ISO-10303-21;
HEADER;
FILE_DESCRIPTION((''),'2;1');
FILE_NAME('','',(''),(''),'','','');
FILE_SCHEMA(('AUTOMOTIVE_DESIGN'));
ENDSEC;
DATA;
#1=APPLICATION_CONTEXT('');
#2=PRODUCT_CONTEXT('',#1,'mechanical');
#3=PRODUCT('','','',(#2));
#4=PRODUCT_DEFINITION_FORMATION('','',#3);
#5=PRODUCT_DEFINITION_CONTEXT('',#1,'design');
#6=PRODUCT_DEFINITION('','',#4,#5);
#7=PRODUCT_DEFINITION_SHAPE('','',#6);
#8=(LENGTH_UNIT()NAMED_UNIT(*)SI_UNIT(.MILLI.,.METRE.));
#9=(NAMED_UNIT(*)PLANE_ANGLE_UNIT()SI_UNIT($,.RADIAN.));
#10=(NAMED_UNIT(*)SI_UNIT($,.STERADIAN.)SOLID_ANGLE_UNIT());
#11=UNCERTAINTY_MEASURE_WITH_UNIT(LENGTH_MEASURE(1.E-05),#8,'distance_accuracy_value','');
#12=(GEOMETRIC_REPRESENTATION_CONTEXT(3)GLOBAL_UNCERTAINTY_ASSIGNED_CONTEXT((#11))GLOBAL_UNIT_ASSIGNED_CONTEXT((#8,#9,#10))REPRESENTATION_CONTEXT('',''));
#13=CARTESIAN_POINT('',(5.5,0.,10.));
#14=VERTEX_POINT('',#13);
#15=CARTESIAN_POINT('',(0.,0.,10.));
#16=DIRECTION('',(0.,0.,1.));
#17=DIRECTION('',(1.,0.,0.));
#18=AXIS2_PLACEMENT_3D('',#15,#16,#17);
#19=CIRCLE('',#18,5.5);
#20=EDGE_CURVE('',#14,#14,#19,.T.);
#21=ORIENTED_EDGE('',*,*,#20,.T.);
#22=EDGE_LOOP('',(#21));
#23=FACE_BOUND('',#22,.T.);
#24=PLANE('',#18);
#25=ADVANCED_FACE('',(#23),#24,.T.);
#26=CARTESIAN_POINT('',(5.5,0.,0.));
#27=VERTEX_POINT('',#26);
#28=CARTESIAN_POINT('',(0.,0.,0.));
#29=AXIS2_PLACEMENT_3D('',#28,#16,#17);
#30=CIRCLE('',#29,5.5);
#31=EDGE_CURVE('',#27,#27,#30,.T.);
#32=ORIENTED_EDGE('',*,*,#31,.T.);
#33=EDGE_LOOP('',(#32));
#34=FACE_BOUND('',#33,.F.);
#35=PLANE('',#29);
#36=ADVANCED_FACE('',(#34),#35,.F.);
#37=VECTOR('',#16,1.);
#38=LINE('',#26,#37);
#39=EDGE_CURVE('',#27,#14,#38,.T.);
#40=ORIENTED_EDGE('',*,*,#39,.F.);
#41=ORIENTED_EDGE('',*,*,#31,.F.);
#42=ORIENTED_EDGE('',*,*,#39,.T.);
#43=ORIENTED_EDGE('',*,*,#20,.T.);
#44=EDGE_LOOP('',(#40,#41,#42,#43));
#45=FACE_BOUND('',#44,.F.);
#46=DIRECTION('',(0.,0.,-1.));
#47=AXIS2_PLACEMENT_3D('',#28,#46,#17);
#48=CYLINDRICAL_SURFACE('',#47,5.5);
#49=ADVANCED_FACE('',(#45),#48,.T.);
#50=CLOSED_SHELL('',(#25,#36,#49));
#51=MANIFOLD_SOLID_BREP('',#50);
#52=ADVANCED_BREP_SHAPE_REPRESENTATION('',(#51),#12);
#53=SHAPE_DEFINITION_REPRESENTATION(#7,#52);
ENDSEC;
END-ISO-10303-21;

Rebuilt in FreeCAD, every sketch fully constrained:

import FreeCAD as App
import Part
import Sketcher
Q = App.Units.Quantity

doc = App.newDocument("Part")
body = doc.addObject("PartDesign::Body", "Body")

# Sketch on XY plane
sketch1 = body.newObject("Sketcher::SketchObject", "Sketch")
sketch1.AttachmentSupport = (doc.getObject("XY_Plane"), [""])
sketch1.MapMode = "FlatFace"
sketch1.addGeometry(Part.Circle(App.Vector(0, 0, 0), App.Vector(0, 0, 1), 6), False)
sketch1.addConstraint(Sketcher.Constraint("Coincident", 0, 3, -1, 1))
sketch1.addConstraint(Sketcher.Constraint("Diameter", 0, Q("11 mm")))
pad1 = body.newObject("PartDesign::Pad", "Pad")
pad1.Profile = sketch1
pad1.Length = 10

doc.recompute()
